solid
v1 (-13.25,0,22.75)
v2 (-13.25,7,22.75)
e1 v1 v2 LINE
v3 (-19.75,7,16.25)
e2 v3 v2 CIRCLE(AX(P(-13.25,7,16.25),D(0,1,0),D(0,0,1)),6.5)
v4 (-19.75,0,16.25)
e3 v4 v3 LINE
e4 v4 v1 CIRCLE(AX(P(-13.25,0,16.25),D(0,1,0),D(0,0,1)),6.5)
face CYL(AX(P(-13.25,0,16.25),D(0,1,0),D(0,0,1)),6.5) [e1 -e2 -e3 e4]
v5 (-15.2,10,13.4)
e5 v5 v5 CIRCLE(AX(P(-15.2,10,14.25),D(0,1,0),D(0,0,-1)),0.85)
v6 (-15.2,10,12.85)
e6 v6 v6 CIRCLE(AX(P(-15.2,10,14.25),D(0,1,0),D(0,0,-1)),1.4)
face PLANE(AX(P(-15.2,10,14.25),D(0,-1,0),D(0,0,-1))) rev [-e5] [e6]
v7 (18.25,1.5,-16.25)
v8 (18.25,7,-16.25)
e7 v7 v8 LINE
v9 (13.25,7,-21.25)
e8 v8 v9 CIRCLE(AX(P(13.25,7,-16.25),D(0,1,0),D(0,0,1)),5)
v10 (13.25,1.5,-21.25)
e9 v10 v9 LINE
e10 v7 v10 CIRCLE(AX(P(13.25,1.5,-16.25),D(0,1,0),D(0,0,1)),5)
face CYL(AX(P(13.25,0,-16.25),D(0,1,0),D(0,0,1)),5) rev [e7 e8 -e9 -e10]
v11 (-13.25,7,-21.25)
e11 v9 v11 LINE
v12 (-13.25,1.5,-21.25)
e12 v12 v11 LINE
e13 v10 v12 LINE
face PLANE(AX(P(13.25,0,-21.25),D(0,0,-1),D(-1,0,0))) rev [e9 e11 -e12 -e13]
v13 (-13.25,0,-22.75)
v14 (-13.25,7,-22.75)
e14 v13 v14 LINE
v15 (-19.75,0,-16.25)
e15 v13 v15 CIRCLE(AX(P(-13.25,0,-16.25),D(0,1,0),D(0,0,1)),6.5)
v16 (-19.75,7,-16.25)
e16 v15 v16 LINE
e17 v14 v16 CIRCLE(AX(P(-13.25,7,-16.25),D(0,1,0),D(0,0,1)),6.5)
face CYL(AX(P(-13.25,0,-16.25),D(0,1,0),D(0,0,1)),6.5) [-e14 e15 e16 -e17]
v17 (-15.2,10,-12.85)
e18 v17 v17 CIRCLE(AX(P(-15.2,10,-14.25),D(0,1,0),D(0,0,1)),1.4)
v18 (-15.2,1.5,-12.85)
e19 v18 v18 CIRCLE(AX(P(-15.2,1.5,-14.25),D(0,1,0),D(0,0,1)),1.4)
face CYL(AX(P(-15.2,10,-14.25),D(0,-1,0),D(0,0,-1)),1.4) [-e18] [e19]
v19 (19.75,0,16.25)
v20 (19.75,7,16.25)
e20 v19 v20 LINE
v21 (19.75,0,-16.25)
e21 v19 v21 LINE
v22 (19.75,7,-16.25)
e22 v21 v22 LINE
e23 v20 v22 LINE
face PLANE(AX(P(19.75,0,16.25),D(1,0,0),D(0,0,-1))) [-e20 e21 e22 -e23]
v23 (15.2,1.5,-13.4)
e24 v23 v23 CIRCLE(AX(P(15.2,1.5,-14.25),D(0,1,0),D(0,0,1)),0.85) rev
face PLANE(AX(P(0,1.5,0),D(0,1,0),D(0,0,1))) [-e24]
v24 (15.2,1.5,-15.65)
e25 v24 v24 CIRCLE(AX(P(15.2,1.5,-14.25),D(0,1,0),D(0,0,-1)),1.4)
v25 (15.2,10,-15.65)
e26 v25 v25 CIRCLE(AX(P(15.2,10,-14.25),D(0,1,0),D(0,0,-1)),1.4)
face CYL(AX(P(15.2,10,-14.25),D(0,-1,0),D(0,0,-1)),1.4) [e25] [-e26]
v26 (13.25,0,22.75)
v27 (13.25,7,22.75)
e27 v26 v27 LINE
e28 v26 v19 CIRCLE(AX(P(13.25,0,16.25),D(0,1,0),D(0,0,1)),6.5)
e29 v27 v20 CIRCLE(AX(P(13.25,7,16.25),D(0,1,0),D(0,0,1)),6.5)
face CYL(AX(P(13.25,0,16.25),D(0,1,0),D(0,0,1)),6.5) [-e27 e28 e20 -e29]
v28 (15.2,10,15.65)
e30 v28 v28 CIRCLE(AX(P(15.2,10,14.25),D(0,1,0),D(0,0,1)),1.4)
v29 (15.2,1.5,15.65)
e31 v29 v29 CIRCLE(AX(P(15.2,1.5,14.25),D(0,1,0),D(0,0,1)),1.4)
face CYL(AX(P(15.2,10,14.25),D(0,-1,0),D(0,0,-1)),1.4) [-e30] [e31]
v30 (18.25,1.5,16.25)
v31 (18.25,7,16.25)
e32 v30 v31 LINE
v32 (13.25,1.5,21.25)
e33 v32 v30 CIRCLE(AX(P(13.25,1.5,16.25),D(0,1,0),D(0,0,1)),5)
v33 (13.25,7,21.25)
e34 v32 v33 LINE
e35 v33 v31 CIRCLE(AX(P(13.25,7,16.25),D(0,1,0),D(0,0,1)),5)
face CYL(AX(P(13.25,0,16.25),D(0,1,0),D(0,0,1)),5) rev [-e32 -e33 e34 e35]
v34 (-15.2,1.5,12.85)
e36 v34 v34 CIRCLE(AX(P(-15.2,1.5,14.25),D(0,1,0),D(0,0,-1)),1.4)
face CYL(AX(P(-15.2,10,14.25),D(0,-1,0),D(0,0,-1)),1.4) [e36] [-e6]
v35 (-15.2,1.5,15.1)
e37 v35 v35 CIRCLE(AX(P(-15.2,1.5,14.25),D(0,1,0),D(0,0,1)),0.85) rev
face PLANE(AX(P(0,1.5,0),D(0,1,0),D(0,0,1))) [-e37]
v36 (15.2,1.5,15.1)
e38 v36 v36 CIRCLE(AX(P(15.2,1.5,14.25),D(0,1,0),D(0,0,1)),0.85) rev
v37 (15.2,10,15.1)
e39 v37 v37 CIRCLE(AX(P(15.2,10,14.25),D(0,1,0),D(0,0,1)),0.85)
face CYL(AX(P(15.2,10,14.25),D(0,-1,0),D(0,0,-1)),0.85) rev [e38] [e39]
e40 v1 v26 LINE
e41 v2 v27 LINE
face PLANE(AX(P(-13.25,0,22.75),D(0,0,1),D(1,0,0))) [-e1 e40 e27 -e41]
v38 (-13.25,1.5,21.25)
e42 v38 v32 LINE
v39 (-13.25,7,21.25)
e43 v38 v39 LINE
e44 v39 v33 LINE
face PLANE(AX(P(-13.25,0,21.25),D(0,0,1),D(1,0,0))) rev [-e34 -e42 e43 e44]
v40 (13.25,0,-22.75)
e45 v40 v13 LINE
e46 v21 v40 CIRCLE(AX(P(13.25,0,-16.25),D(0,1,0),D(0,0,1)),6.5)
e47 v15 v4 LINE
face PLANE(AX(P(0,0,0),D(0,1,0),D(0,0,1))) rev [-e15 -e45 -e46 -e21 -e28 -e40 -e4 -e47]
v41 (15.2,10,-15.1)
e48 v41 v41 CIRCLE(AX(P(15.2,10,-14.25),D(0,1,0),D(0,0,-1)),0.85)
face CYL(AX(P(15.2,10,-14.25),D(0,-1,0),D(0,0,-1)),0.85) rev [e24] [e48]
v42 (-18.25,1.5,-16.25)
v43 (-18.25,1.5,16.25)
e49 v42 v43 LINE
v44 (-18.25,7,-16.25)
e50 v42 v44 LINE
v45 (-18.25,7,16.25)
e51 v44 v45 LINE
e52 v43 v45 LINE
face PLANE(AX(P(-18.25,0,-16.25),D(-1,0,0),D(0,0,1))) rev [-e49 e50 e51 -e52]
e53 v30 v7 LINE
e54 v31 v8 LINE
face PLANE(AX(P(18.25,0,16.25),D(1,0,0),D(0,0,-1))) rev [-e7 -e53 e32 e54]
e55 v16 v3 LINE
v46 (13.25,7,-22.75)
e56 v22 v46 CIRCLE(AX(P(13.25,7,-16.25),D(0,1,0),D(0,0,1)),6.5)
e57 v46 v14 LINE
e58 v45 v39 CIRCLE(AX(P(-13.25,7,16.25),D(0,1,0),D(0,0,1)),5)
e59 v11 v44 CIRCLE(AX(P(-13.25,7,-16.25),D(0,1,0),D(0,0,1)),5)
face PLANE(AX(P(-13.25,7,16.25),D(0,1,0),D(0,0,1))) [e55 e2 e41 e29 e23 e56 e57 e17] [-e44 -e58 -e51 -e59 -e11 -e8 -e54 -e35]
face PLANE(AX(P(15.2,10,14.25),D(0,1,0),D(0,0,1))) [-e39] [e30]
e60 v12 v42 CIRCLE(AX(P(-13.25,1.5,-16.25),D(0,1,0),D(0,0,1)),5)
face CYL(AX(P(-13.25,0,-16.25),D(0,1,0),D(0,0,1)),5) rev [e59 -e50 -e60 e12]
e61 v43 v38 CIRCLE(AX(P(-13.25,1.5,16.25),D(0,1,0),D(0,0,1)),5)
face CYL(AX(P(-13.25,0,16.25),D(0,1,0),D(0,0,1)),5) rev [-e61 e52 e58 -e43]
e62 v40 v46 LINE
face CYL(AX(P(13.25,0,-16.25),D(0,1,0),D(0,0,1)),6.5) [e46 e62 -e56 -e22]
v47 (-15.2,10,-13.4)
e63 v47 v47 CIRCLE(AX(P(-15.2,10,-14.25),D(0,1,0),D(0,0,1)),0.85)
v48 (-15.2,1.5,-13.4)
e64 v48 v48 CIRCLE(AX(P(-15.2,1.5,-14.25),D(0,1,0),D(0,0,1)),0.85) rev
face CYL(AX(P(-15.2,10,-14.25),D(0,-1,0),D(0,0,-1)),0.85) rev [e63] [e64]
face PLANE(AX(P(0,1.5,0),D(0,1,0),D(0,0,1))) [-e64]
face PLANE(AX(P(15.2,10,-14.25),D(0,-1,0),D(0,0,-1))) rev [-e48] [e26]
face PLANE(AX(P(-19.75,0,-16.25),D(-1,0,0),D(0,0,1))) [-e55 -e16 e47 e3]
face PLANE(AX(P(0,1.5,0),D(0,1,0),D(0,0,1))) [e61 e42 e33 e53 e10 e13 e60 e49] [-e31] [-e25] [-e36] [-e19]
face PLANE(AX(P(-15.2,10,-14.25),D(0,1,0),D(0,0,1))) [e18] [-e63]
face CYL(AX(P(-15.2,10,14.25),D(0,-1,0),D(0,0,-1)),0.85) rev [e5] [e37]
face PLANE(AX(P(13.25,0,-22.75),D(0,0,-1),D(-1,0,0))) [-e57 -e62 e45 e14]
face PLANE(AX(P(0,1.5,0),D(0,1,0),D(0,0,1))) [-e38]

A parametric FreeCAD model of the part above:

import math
import FreeCAD as App
import Part
import Sketcher

V = App.Vector


def edges_at(feature, points):
    """Names of the edges that pass closest to the given points."""
    edges = feature.Shape.Edges
    near = lambda p: min(range(len(edges)), key=lambda i: edges[i].distToShape(Part.Vertex(*p))[0])
    return sorted({f"Edge{near(p) + 1}" for p in points})


def add_polygon(sketch, points):
    """Adds a closed chain of lines whose ends are joined by coincident constraints."""
    first, n = sketch.GeometryCount, len(points)
    for a, b in zip(points, points[1:] + points[:1]):
        sketch.addGeometry(Part.LineSegment(App.Vector(*a, 0), App.Vector(*b, 0)), False)
    for i in range(n):
        sketch.addConstraint(Sketcher.Constraint("Coincident", first + i, 2, first + (i + 1) % n, 1))

doc = App.newDocument("Part")
body = doc.addObject("PartDesign::Body", "Body")

# Sketch on XZ plane
sketch1 = body.newObject("Sketcher::SketchObject", "Sketch")
sketch1.AttachmentSupport = (doc.getObject("XZ_Plane"), [""])
sketch1.MapMode = "FlatFace"
add_polygon(sketch1, [(-18, -21), (-18, 21), (18, 21), (18, -21)])  # lines 0-3
sketch1.addConstraint([
    Sketcher.Constraint("Vertical", 0),
    Sketcher.Constraint("Horizontal", 1),
    Sketcher.Constraint("Vertical", 2),
    Sketcher.Constraint("Horizontal", 3),
    Sketcher.Constraint("Symmetric", 0, 2, 2, 2, -1, 1),
    Sketcher.Constraint("DistanceX", 1, 1, 1, 2, 36.5),
    Sketcher.Constraint("DistanceY", 0, 1, 0, 2, 42.5),
])
pad1 = body.newObject("PartDesign::Pad", "Pad")
pad1.Profile = sketch1
pad1.Length = 1.5
pad1.Reversed = True
doc.recompute()

fillet = body.newObject("PartDesign::Fillet", "Fillet")
fillet.Base = (pad1, edges_at(pad1, [
    (18.25, 0.75, 21.25),
    (-18.25, 0.75, 21.25),
    (-18.25, 0.75, -21.25),
    (18.25, 0.75, -21.25),
]))
fillet.Radius = 5

# Sketch on XZ plane
sketch2 = body.newObject("Sketcher::SketchObject", "Sketch001")
sketch2.AttachmentSupport = (doc.getObject("XZ_Plane"), [""])
sketch2.MapMode = "FlatFace"
sketch2.AttachmentOffset = App.Placement(V(0, 0, -1.5), App.Rotation())
sketch2.addGeometry([
    Part.Circle(V(-15.2, -14.2, 0), V(0, 0, 1), 1.4),  # 0
    Part.Circle(V(-15.2, -14.2, 0), V(0, 0, 1), 0.8),  # 1
    Part.Circle(V(-15.2, 14.2, 0), V(0, 0, 1), 1.4),  # 2
    Part.Circle(V(-15.2, 14.2, 0), V(0, 0, 1), 0.8),  # 3
    Part.Circle(V(15.2, 14.2, 0), V(0, 0, 1), 1.4),  # 4
    Part.Circle(V(15.2, 14.2, 0), V(0, 0, 1), 0.8),  # 5
    Part.Circle(V(15.2, -14.2, 0), V(0, 0, 1), 1.4),  # 6
    Part.Circle(V(15.2, -14.2, 0), V(0, 0, 1), 0.8),  # 7
], False)
sketch2.addConstraint([
    Sketcher.Constraint("Coincident", 1, 3, 0, 3),
    Sketcher.Constraint("Coincident", 3, 3, 2, 3),
    Sketcher.Constraint("Coincident", 5, 3, 4, 3),
    Sketcher.Constraint("Coincident", 7, 3, 6, 3),
    Sketcher.Constraint("Equal", 0, 2),
    Sketcher.Constraint("Equal", 1, 3),
    Sketcher.Constraint("Equal", 2, 4),
    Sketcher.Constraint("Equal", 3, 5),
    Sketcher.Constraint("Equal", 4, 6),
    Sketcher.Constraint("Equal", 5, 7),
    Sketcher.Constraint("Symmetric", 0, 3, 4, 3, -1, 1),
    Sketcher.Constraint("Symmetric", 2, 3, 6, 3, -1, 1),
    Sketcher.Constraint("Symmetric", 2, 3, 4, 3, -2),
    Sketcher.Constraint("Diameter", 0, 2.8),
    Sketcher.Constraint("Diameter", 1, 1.7),
    Sketcher.Constraint("DistanceX", 0, 3, -1, 1, 15.2),
    Sketcher.Constraint("DistanceY", 0, 3, 2, 3, 28.5),
])
pad2 = body.newObject("PartDesign::Pad", "Pad001")
pad2.Profile = sketch2
pad2.Length = 8.5
pad2.Reversed = True

# Sketch on XZ plane
sketch3 = body.newObject("Sketcher::SketchObject", "Sketch002")
sketch3.AttachmentSupport = (doc.getObject("XZ_Plane"), [""])
sketch3.MapMode = "FlatFace"
sketch3.AttachmentOffset = App.Placement(V(0, 0, -1.5), App.Rotation())
sketch3.addGeometry([
    Part.LineSegment(V(-13, 23, 0), V(13, 23, 0)),  # 0
    Part.ArcOfCircle(Part.Circle(V(13, 16, 0), V(0, 0, 1), 6), math.radians(0), math.radians(90)),  # 1
    Part.LineSegment(V(20, 16, 0), V(20, -16, 0)),  # 2
    Part.ArcOfCircle(Part.Circle(V(13, -16, 0), V(0, 0, 1), 6), math.radians(-90), math.radians(0)),  # 3
    Part.LineSegment(V(13, -23, 0), V(-13, -23, 0)),  # 4
    Part.ArcOfCircle(Part.Circle(V(-13, -16, 0), V(0, 0, 1), 6), math.radians(180), math.radians(270)),  # 5
    Part.LineSegment(V(-20, -16, 0), V(-20, 16, 0)),  # 6
    Part.ArcOfCircle(Part.Circle(V(-13, 16, 0), V(0, 0, 1), 6), math.radians(90), math.radians(180)),  # 7
    Part.LineSegment(V(13, 21, 0), V(-13, 21, 0)),  # 8
    Part.ArcOfCircle(Part.Circle(V(-13, 16, 0), V(0, 0, 1), 5), math.radians(90), math.radians(180)),  # 9
    Part.LineSegment(V(-18, 16, 0), V(-18, -16, 0)),  # 10
    Part.ArcOfCircle(Part.Circle(V(-13, -16, 0), V(0, 0, 1), 5), math.radians(180), math.radians(270)),  # 11
    Part.LineSegment(V(-13, -21, 0), V(13, -21, 0)),  # 12
    Part.ArcOfCircle(Part.Circle(V(13, -16, 0), V(0, 0, 1), 5), math.radians(-90), math.radians(0)),  # 13
    Part.LineSegment(V(18, -16, 0), V(18, 16, 0)),  # 14
    Part.ArcOfCircle(Part.Circle(V(13, 16, 0), V(0, 0, 1), 5), math.radians(0), math.radians(90)),  # 15
], False)
sketch3.addConstraint([
    Sketcher.Constraint("Tangent", 0, 2, 1, 2),
    Sketcher.Constraint("Tangent", 1, 1, 2, 1),
    Sketcher.Constraint("Tangent", 2, 2, 3, 2),
    Sketcher.Constraint("Tangent", 3, 1, 4, 1),
    Sketcher.Constraint("Tangent", 4, 2, 5, 2),
    Sketcher.Constraint("Tangent", 5, 1, 6, 1),
    Sketcher.Constraint("Tangent", 6, 2, 7, 2),
    Sketcher.Constraint("Tangent", 7, 1, 0, 1),
    Sketcher.Constraint("Tangent", 8, 2, 9, 1),
    Sketcher.Constraint("Tangent", 9, 2, 10, 1),
    Sketcher.Constraint("Tangent", 10, 2, 11, 1),
    Sketcher.Constraint("Tangent", 11, 2, 12, 1),
    Sketcher.Constraint("Tangent", 12, 2, 13, 1),
    Sketcher.Constraint("Tangent", 13, 2, 14, 1),
    Sketcher.Constraint("Tangent", 14, 2, 15, 1),
    Sketcher.Constraint("Tangent", 15, 2, 8, 1),
    Sketcher.Constraint("Horizontal", 0),
    Sketcher.Constraint("Vertical", 2),
    Sketcher.Constraint("Horizontal", 4),
    Sketcher.Constraint("Vertical", 6),
    Sketcher.Constraint("Horizontal", 8),
    Sketcher.Constraint("Vertical", 10),
    Sketcher.Constraint("Horizontal", 12),
    Sketcher.Constraint("Vertical", 14),
    Sketcher.Constraint("Coincident", 9, 3, 7, 3),
    Sketcher.Constraint("Coincident", 11, 3, 5, 3),
    Sketcher.Constraint("Coincident", 13, 3, 3, 3),
    Sketcher.Constraint("Equal", 1, 3),
    Sketcher.Constraint("Equal", 3, 5),
    Sketcher.Constraint("Equal", 5, 7),
    Sketcher.Constraint("Equal", 13, 15),
    Sketcher.Constraint("Symmetric", 1, 3, 5, 3, -1, 1),
    Sketcher.Constraint("Radius", 9, 5.0),
    Sketcher.Constraint("Radius", 1, 6.5),
    Sketcher.Constraint("DistanceX", 0, 1, 0, 2, 26.5),
    Sketcher.Constraint("DistanceY", 2, 2, 2, 1, 32.5),
])
pad3 = body.newObject("PartDesign::Pad", "Pad002")
pad3.Profile = sketch3
pad3.Type = "TwoLengths"
pad3.Length = 5.5
pad3.Length2 = 1.5
pad3.Reversed = True

doc.recompute()
